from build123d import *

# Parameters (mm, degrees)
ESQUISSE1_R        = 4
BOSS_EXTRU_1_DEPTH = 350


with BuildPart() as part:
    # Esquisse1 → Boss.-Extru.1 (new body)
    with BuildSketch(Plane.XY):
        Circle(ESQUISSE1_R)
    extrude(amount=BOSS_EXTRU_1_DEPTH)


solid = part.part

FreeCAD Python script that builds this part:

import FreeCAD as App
import Part
import Sketcher
Q = App.Units.Quantity

doc = App.newDocument("Part")
body = doc.addObject("PartDesign::Body", "Body")

# Sketch on XY plane
sketch1 = body.newObject("Sketcher::SketchObject", "Sketch")
sketch1.AttachmentSupport = (doc.getObject("XY_Plane"), [""])
sketch1.MapMode = "FlatFace"
sketch1.addGeometry(Part.Circle(App.Vector(0, 0, 0), App.Vector(0, 0, 1), 4), False)
sketch1.addConstraint([
    Sketcher.Constraint("Coincident", 0, 3, -1, 1),
    Sketcher.Constraint("Diameter", 0, Q("8 mm")),
])
pad1 = body.newObject("PartDesign::Pad", "Pad")
pad1.Profile = sketch1
pad1.Length = 350

doc.recompute()
